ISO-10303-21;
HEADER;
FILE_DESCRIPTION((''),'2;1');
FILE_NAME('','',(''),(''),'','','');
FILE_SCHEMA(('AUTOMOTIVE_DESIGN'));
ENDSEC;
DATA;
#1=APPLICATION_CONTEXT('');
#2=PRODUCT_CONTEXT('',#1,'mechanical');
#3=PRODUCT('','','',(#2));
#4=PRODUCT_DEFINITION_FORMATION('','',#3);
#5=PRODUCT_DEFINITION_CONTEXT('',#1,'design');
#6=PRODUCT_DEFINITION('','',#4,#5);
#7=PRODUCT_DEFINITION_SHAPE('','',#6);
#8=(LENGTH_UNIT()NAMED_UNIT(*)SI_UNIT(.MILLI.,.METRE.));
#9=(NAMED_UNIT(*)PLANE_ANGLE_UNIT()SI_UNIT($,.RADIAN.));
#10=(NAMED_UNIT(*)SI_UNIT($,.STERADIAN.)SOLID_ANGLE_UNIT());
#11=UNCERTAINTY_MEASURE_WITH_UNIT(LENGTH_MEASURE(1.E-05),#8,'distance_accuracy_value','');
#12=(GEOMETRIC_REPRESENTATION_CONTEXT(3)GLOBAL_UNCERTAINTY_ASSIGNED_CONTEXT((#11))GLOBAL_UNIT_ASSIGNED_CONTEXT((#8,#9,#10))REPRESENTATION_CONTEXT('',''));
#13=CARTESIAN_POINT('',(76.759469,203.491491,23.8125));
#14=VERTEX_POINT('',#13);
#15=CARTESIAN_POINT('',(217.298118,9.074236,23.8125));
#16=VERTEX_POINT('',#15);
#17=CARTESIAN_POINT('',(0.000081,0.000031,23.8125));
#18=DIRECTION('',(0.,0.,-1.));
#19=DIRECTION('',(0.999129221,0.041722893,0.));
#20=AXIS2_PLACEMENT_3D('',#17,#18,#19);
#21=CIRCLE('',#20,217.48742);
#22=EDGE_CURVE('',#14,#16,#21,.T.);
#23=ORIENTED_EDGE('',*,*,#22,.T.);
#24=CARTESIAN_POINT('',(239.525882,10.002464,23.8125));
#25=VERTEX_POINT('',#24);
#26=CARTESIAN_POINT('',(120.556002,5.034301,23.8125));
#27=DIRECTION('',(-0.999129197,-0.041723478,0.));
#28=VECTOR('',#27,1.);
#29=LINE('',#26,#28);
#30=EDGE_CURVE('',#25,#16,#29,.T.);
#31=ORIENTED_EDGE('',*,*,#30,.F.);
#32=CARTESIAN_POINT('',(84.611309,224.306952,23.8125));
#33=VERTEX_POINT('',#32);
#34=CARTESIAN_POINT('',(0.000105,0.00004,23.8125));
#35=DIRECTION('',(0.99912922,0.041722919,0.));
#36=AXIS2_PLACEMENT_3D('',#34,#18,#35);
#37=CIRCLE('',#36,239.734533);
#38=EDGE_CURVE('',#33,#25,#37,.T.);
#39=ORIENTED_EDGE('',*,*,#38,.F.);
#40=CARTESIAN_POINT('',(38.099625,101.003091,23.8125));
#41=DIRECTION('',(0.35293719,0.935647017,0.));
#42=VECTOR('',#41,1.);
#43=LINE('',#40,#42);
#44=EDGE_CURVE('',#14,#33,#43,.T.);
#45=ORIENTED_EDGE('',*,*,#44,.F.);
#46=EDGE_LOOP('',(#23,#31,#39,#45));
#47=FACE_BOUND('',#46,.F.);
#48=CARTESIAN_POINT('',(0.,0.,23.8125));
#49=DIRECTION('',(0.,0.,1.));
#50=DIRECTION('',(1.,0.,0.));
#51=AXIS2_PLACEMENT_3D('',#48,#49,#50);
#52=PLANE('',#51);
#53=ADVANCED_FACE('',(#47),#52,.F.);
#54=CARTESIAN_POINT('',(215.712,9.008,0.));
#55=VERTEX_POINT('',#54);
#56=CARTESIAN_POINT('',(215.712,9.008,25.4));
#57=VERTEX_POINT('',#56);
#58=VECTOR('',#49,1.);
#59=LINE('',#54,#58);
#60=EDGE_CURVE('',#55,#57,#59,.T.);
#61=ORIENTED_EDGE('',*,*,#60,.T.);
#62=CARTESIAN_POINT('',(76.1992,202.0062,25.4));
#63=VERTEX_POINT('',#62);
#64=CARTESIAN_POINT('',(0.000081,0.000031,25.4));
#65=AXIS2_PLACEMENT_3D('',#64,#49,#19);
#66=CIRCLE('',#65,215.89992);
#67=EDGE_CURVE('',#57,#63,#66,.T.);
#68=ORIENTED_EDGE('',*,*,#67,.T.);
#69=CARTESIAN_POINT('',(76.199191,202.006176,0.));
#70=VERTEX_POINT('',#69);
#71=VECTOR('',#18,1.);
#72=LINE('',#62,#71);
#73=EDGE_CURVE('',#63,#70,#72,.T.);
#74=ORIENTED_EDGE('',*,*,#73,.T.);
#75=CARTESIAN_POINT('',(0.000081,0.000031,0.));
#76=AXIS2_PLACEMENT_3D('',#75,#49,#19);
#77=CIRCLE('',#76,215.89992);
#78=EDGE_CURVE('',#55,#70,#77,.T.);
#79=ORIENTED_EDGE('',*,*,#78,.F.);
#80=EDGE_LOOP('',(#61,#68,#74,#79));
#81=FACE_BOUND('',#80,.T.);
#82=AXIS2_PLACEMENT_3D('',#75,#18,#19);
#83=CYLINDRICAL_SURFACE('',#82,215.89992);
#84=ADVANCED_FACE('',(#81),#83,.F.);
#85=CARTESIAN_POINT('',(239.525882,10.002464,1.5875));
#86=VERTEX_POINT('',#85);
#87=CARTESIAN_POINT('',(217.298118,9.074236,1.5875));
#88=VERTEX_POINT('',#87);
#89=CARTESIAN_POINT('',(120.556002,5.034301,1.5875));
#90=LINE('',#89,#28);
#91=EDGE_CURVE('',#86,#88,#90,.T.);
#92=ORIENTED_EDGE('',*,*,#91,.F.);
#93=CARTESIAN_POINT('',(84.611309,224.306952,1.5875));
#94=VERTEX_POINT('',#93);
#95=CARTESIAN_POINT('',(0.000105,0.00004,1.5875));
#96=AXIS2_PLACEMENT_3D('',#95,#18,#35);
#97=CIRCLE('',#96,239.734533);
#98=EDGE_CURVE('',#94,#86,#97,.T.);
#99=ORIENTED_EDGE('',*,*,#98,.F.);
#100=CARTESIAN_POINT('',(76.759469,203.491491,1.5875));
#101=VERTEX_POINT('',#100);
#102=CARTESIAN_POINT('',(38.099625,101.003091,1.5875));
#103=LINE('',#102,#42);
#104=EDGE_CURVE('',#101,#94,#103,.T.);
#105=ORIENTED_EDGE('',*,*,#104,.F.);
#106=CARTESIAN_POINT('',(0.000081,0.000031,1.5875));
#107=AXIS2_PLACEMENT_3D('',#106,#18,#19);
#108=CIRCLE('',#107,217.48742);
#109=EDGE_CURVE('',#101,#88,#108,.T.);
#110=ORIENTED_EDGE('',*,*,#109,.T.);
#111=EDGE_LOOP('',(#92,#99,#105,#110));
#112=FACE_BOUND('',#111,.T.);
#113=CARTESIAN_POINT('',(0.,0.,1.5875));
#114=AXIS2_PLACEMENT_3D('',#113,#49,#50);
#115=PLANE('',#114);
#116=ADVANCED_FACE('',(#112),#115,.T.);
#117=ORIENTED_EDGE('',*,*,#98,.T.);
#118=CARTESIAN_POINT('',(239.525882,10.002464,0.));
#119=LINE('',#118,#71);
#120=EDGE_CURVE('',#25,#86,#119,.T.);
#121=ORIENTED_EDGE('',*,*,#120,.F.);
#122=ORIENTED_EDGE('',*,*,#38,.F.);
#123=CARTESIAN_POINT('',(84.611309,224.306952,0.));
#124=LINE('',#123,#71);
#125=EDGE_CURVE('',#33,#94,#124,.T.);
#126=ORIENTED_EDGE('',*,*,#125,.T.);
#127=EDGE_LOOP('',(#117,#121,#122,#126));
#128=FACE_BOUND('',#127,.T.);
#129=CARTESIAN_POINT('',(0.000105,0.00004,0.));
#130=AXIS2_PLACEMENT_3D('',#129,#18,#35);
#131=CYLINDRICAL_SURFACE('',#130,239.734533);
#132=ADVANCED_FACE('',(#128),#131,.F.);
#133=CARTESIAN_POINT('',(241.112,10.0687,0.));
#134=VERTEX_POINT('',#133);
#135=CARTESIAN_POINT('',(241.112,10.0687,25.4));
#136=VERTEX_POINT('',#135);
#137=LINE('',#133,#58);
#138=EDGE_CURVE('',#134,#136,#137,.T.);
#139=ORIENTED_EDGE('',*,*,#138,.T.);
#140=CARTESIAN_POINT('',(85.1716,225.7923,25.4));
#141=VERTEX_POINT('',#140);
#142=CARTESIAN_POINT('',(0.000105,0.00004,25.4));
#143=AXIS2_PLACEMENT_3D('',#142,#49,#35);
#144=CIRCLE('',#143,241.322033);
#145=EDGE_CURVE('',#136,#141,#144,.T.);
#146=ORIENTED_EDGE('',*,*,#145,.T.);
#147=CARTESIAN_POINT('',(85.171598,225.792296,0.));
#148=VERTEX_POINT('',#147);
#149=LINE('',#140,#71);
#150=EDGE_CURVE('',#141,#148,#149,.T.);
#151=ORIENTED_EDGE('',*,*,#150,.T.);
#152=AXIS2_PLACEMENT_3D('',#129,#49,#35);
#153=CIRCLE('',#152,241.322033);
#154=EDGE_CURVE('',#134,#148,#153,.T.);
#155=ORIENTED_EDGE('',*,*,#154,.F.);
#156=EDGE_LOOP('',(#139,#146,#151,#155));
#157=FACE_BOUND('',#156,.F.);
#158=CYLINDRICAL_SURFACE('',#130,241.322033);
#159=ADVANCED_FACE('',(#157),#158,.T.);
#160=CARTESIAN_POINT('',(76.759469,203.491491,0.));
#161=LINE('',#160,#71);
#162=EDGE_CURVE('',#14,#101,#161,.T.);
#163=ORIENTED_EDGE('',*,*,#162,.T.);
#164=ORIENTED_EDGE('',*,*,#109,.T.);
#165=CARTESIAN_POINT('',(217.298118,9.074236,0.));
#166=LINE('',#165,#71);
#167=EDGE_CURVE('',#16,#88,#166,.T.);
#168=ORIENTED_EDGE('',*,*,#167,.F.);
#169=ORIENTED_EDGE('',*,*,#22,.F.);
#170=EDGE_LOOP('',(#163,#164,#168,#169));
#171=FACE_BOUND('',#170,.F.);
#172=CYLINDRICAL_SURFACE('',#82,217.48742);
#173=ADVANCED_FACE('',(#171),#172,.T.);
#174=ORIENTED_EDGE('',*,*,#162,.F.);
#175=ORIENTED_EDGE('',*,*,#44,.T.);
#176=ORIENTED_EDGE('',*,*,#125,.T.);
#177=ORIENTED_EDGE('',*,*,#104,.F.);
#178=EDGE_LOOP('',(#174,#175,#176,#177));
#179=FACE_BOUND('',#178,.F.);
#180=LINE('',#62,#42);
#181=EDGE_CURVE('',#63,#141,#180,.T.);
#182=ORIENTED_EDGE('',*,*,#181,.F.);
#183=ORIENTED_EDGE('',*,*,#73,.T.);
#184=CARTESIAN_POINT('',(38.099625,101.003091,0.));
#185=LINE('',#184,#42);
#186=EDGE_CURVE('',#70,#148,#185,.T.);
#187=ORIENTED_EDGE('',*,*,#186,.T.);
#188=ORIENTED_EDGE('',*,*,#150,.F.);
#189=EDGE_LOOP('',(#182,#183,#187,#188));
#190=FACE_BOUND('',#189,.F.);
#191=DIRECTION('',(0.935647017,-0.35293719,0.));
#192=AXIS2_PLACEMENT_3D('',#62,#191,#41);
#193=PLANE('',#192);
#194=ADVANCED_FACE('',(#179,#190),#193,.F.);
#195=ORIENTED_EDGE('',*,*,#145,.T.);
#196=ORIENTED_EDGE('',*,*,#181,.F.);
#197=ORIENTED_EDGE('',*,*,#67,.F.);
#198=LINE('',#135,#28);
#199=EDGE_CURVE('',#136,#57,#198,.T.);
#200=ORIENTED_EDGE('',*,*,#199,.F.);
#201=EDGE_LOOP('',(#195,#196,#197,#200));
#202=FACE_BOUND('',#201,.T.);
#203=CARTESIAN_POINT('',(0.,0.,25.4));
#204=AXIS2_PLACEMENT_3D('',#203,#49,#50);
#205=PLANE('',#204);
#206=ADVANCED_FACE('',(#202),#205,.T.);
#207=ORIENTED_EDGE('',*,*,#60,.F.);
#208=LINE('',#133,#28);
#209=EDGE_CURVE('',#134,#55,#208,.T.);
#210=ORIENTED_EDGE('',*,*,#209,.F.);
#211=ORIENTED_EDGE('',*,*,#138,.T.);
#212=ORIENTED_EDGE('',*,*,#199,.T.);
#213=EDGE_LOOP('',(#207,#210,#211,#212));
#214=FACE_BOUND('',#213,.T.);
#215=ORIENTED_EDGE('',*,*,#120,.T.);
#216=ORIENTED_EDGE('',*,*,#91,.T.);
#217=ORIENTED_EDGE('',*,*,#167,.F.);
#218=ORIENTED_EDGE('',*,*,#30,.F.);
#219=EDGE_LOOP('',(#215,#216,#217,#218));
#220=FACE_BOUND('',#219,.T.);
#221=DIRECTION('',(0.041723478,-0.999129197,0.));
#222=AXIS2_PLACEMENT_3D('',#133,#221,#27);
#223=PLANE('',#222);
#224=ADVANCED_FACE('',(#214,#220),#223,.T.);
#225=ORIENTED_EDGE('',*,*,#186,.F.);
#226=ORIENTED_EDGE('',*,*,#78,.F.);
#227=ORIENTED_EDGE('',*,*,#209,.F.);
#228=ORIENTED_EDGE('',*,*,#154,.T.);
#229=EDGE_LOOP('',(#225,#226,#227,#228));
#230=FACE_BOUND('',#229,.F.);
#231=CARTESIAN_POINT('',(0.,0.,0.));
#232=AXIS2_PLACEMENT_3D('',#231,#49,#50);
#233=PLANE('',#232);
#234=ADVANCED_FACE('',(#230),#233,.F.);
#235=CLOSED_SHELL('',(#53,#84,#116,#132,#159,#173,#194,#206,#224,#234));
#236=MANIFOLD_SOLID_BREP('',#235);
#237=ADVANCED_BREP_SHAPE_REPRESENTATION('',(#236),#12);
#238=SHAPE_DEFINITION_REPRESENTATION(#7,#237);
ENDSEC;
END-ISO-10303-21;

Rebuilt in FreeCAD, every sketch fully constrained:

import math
import FreeCAD as App
import Part
import Sketcher
from FreeCAD import Vector
Q = App.Units.Quantity


def faces_at(feature, points):
    """Names of the faces that lie closest to the given points."""
    faces = feature.Shape.Faces
    near = lambda p: min(range(len(faces)), key=lambda i: faces[i].distToShape(Part.Vertex(*p))[0])
    return sorted({f"Face{near(p) + 1}" for p in points})

doc = App.newDocument("Part")
body = doc.addObject("PartDesign::Body", "Body")

# Sketch on XY plane
sketch1 = body.newObject("Sketcher::SketchObject", "Sketch")
sketch1.AttachmentSupport = (doc.getObject("XY_Plane"), [""])
sketch1.MapMode = "FlatFace"
sketch1.addGeometry(Part.LineSegment(Vector(216, 9, 0), Vector(241, 10, 0)), False)
sketch1.addGeometry(Part.ArcOfCircle(Part.Circle(Vector(0, 0, 0), Vector(0, 0, 1), 241), math.radians(2), math.radians(76)), False)
sketch1.addGeometry(Part.LineSegment(Vector(57, 235, 0), Vector(51, 210, 0)), False)
sketch1.addGeometry(Part.ArcOfCircle(Part.Circle(Vector(0, 0, 0), Vector(0, 0, 1), 216), math.radians(2), math.radians(76)), False)
sketch1.addConstraint(Sketcher.Constraint("Coincident", 0, 2, 1, 1))
sketch1.addConstraint(Sketcher.Constraint("Coincident", 1, 2, 2, 1))
sketch1.addConstraint(Sketcher.Constraint("Coincident", 2, 2, 3, 2))
sketch1.addConstraint(Sketcher.Constraint("Coincident", 3, 1, 0, 1))
sketch1.addConstraint(Sketcher.Constraint("Coincident", 1, 3, -1, 1))
sketch1.addConstraint(Sketcher.Constraint("Coincident", 3, 3, -1, 1))
sketch1.addConstraint(Sketcher.Constraint("Radius", 3, Q("8.5 in")))
sketch1.addConstraint(Sketcher.Constraint("DistanceX", 3, 1, 0, 2, Q("1 in")))
sketch1.addConstraint(Sketcher.Constraint("Radius", 1, 241.3221))
sketch1.addConstraint(Sketcher.Constraint("DistanceX", -1, 1, 0, 2, Q("9.4926 in")))
sketch1.addConstraint(Sketcher.Constraint("DistanceX", 2, 2, 1, 2, Q("0.2355 in")))
sketch1.addConstraint(Sketcher.Constraint("DistanceX", -1, 1, 1, 2, 56.7808))
pad1 = body.newObject("PartDesign::Pad", "Pad")
pad1.Profile = sketch1
pad1.Length = Q("1 in")
doc.recompute()

thickness = body.newObject("PartDesign::Thickness", "Thickness")
thickness.Base = (pad1, faces_at(pad1, [(232.645, 9.715, 8.467), (52.793, 218.075, 8.467)]))
thickness.Value = Q("0.0625 in")
thickness.Reversed = True
thickness.Join = "Intersection"

# Sketch on XY plane
sketch2 = body.newObject("Sketcher::SketchObject", "Sketch001")
sketch2.AttachmentSupport = (doc.getObject("XY_Plane"), [""])
sketch2.MapMode = "FlatFace"
sketch2.AttachmentOffset = App.Placement(Vector(0, 0, 1 * 25.4), App.Rotation())
sketch2.addGeometry(Part.LineSegment(Vector(57, 235, 0), Vector(51, 210, 0)), False)
sketch2.addGeometry(Part.ArcOfCircle(Part.Circle(Vector(0, 0, 0), Vector(0, 0, 1), 216), math.radians(69.33), math.radians(76.39)), False)
sketch2.addGeometry(Part.LineSegment(Vector(76, 202, 0), Vector(85, 226, 0)), False)
sketch2.addGeometry(Part.ArcOfCircle(Part.Circle(Vector(0, 0, 0), Vector(0, 0, 1), 241), math.radians(69.33), math.radians(76.39)), False)
sketch2.addConstraint(Sketcher.Constraint("Coincident", 0, 2, 1, 2))
sketch2.addConstraint(Sketcher.Constraint("Coincident", 1, 1, 2, 1))
sketch2.addConstraint(Sketcher.Constraint("Coincident", 2, 2, 3, 1))
sketch2.addConstraint(Sketcher.Constraint("Coincident", 3, 2, 0, 1))
sketch2.addConstraint(Sketcher.Constraint("Coincident", 1, 3, -1, 1))
sketch2.addConstraint(Sketcher.Constraint("Equal", 0, 2))
sketch2.addConstraint(Sketcher.Constraint("DistanceX", 0, 2, 1, 1, Q("1 in")))
sketch2.addConstraint(Sketcher.Constraint("Radius", 1, Q("8.5 in")))
sketch2.addConstraint(Sketcher.Constraint("Radius", 3, 241.3168))
sketch2.addConstraint(Sketcher.Constraint("DistanceY", -1, 1, 1, 1, Q("7.953 in")))
sketch2.addConstraint(Sketcher.Constraint("DistanceY", -1, 1, 3, 3, Q("0.0002 in")))
sketch2.addConstraint(Sketcher.Constraint("DistanceY", 0, 2, 2, 2, Q("0.6281 in")))
sketch2.addConstraint(Sketcher.Constraint("DistanceX", 0, 2, 3, 2, Q("0.2355 in")))
pocket1 = body.newObject("PartDesign::Pocket", "Pocket")
pocket1.Profile = sketch2
pocket1.Type = "ThroughAll"

doc.recompute()
